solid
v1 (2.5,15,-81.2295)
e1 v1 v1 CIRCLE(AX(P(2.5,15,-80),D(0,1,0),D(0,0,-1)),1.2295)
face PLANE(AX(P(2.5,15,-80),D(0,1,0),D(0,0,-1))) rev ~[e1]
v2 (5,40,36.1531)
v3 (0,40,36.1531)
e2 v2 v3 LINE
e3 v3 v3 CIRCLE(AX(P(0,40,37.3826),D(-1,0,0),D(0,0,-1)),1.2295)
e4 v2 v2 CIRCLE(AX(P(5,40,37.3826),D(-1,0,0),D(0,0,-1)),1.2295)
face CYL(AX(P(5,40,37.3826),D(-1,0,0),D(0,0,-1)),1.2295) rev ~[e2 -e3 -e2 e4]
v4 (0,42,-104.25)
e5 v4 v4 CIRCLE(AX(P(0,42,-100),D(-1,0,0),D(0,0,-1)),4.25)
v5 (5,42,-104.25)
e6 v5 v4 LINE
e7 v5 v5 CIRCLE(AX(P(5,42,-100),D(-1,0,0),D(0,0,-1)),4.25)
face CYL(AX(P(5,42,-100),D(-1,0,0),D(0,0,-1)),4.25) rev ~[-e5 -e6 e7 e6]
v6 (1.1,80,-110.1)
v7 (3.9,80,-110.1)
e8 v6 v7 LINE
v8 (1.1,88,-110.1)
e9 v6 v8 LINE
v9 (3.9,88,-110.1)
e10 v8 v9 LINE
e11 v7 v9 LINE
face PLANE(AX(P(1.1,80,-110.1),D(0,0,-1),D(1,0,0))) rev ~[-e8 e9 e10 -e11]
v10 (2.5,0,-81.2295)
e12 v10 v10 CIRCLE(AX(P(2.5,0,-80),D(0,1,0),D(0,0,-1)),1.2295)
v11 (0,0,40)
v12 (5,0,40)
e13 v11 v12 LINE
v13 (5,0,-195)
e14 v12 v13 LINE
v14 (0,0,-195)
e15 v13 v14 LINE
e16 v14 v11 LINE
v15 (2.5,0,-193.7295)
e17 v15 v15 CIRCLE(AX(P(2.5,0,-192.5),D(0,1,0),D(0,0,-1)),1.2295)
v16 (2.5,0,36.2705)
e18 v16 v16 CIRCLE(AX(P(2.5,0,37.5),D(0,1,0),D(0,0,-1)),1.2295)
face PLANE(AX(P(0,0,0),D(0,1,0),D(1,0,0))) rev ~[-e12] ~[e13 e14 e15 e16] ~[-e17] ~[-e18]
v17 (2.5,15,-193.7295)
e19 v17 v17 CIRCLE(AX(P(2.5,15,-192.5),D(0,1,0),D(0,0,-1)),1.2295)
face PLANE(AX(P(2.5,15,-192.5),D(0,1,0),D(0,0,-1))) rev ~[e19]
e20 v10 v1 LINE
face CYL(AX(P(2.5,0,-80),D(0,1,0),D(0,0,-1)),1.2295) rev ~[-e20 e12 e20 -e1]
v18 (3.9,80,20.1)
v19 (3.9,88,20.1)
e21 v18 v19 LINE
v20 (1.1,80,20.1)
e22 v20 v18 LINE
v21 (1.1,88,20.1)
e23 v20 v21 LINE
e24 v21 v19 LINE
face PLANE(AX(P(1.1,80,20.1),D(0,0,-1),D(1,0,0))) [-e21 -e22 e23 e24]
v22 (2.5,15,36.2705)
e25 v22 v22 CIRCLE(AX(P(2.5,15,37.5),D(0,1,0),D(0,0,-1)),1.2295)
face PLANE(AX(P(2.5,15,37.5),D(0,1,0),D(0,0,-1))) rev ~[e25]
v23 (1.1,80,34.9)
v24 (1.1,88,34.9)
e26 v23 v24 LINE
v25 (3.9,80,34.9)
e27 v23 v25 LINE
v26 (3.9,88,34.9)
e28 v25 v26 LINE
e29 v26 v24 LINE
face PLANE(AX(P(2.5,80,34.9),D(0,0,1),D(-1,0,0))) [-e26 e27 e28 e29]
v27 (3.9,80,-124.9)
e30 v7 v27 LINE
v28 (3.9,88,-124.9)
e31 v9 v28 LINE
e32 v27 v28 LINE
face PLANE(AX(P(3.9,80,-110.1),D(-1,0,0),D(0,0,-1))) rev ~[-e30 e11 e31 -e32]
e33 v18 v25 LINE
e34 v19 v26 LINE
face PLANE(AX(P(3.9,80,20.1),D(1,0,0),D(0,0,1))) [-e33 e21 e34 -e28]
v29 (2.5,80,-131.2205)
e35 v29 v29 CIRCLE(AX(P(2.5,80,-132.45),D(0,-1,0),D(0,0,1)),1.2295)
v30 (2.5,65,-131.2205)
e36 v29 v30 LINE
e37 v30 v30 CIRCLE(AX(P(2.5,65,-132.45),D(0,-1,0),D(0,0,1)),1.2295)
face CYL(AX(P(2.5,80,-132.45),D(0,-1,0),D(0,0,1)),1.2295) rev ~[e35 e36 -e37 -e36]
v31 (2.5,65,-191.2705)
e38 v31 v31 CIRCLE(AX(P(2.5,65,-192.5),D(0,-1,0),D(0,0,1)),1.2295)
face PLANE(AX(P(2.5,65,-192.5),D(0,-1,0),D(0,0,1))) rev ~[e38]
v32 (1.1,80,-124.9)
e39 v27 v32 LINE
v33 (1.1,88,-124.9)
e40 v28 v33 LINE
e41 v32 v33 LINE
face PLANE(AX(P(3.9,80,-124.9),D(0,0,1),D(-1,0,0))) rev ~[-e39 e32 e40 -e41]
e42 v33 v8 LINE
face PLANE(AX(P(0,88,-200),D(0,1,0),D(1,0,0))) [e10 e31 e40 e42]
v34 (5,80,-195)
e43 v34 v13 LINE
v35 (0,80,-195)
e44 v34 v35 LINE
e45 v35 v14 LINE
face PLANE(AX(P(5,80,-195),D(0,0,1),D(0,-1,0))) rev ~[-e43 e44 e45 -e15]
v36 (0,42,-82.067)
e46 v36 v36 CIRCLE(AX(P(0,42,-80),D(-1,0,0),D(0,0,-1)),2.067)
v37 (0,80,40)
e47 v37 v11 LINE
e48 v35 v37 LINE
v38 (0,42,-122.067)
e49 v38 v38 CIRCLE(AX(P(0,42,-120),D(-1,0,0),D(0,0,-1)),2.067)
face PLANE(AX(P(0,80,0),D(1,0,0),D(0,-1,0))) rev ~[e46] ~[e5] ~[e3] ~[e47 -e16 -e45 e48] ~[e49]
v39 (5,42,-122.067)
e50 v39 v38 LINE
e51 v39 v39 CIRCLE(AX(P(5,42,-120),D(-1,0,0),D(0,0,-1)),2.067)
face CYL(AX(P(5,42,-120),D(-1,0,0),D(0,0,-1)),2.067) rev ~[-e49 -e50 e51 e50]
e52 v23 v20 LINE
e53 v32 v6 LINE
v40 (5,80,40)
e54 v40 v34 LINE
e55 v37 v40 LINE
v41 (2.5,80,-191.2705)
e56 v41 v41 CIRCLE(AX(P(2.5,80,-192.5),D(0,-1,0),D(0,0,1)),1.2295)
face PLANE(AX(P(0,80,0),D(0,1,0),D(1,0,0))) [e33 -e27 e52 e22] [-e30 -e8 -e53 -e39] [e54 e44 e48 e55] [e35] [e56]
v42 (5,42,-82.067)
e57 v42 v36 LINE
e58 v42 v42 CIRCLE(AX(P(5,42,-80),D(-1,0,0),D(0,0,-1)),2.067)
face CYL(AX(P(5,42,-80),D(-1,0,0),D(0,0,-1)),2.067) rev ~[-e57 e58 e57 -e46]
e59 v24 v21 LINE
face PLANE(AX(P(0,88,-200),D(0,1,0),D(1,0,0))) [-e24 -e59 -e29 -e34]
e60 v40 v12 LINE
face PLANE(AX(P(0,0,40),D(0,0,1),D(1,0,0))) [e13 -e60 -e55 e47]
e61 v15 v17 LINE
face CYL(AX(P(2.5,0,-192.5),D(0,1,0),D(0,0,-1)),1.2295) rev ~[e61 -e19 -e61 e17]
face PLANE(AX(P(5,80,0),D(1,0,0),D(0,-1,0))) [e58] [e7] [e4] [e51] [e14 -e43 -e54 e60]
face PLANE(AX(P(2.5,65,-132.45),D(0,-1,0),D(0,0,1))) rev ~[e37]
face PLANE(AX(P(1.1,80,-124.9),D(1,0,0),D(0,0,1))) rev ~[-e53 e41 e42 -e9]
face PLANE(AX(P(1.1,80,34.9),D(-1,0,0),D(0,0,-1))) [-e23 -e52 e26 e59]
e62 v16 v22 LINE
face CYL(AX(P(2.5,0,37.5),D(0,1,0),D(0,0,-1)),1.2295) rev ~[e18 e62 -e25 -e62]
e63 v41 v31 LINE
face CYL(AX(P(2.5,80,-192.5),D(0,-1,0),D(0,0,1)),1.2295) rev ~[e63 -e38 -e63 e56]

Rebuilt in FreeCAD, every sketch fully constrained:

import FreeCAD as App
import Part
import Sketcher
Q = App.Units.Quantity


def add_polygon(sketch, points):
    """Adds a closed chain of lines whose ends are joined by coincident constraints."""
    first, n = sketch.GeometryCount, len(points)
    for a, b in zip(points, points[1:] + points[:1]):
        sketch.addGeometry(Part.LineSegment(App.Vector(*a, 0), App.Vector(*b, 0)), False)
    for i in range(n):
        sketch.addConstraint(Sketcher.Constraint("Coincident", first + i, 2, first + (i + 1) % n, 1))

doc = App.newDocument("Part")
params = doc.addObject("Spreadsheet::Sheet", "Params")
for row, (alias, value) in enumerate([
    ("sketch1_width", "80 mm"),
    ("sketch1_height", "200 mm"),
    ("pad1_length", "5 mm"),
    ("hole_diameter", "4.134 mm"),
    ("sketch3_diameter", "8.5 mm"),
    ("hole2_diameter", "8.5 mm"),
    ("sketch4_width", "5 mm"),
    ("sketch4_height", "80 mm"),
    ("pad2_length", "40 mm"),
    ("hole3_diameter", "2.459 mm"),
    ("hole3_depth", "15 mm"),
    ("hole4_diameter", "2.459 mm"),
    ("hole4_depth", "15 mm"),
    ("hole5_diameter", "2.459 mm"),
    ("sketch8_width", "2.8 mm"),
    ("sketch8_height", "14.8 mm"),
    ("pad3_length", "8 mm"),
    ("sketch9_height", "5 mm"),
    ("sketch9_width", "80 mm"),
    ("pocket1_length", "8 mm"),
    ("hole6_diameter", "2.459 mm"),
    ("hole6_depth", "15 mm"),
    ("hole7_diameter", "2.459 mm"),
    ("hole7_depth", "15 mm"),
], start=1):
    params.set(f"A{row}", alias)
    params.set(f"B{row}", "=" + value)
    params.setAlias(f"B{row}", alias)

body = doc.addObject("PartDesign::Body", "Body")

sketch1 = body.newObject("Sketcher::SketchObject", "Sketch")
sketch1.AttachmentSupport = (doc.getObject("YZ_Plane"), [""])
sketch1.MapMode = "FlatFace"
add_polygon(sketch1, [(80, 0), (0, 0), (0, -200), (80, -200)])
sketch1.addConstraint([
    Sketcher.Constraint("Horizontal", 0),
    Sketcher.Constraint("Vertical", 1),
    Sketcher.Constraint("Horizontal", 2),
    Sketcher.Constraint("Vertical", 3),
    Sketcher.Constraint("Coincident", 0, 2, -1, 1),
    Sketcher.Constraint("DistanceX", 0, 2, 0, 1, Q("80 mm")),
    Sketcher.Constraint("DistanceY", 1, 2, 1, 1, Q("200 mm")),
])
sketch1.setExpression("Constraints[9]", "Params.sketch1_width")
sketch1.setExpression("Constraints[10]", "Params.sketch1_height")
pad1 = body.newObject("PartDesign::Pad", "Pad")
pad1.Profile = sketch1
pad1.setExpression("Length", "Params.pad1_length")

sketch2 = body.newObject("Sketcher::SketchObject", "Sketch001")
sketch2.AttachmentSupport = (doc.getObject("YZ_Plane"), [""])
sketch2.MapMode = "FlatFace"
sketch2.AttachmentOffset = App.Placement(App.Vector(0, 0, 5), App.Rotation())
sketch2.addGeometry([
    Part.Circle(App.Vector(42, -120, 0), App.Vector(0, 0, 1), 2.1),
    Part.Circle(App.Vector(42, -80, 0), App.Vector(0, 0, 1), 2.1),
], False)
sketch2.addConstraint([
    Sketcher.Constraint("Equal", 0, 1),
    Sketcher.Constraint("Vertical", 0, 3, 1, 3),
    Sketcher.Constraint("Diameter", 0, Q("4.134 mm")),
    Sketcher.Constraint("DistanceX", -1, 1, 0, 3, Q("42 mm")),
    Sketcher.Constraint("DistanceY", 0, 3, -1, 1, Q("120 mm")),
    Sketcher.Constraint("DistanceY", 1, 3, -1, 1, Q("80 mm")),
])
doc.recompute()
hole = body.newObject("PartDesign::Hole", "Hole")
hole.Profile = sketch2
hole.ThreadType = "None"
hole.setExpression("Diameter", "Params.hole_diameter")
hole.DepthType = "ThroughAll"

sketch3 = body.newObject("Sketcher::SketchObject", "Sketch002")
sketch3.AttachmentSupport = (doc.getObject("YZ_Plane"), [""])
sketch3.MapMode = "FlatFace"
sketch3.AttachmentOffset = App.Placement(App.Vector(0, 0, 5), App.Rotation())
sketch3.addGeometry(Part.Circle(App.Vector(42, -100, 0), App.Vector(0, 0, 1), 4.2), False)
sketch3.addConstraint([
    Sketcher.Constraint("Diameter", 0, Q("8.5 mm")),
    Sketcher.Constraint("DistanceX", -1, 1, 0, 3, Q("42 mm")),
    Sketcher.Constraint("DistanceY", 0, 3, -1, 1, Q("100 mm")),
])
sketch3.setExpression("Constraints[0]", "Params.sketch3_diameter")
doc.recompute()
hole2 = body.newObject("PartDesign::Hole", "Hole001")
hole2.Profile = sketch3
hole2.ThreadType = "None"
hole2.setExpression("Diameter", "Params.hole2_diameter")
hole2.DepthType = "ThroughAll"

sketch4 = body.newObject("Sketcher::SketchObject", "Sketch003")
sketch4.AttachmentSupport = (doc.getObject("XY_Plane"), [""])
sketch4.MapMode = "FlatFace"
add_polygon(sketch4, [(5, 80), (0, 80), (0, 0), (5, 0)])
sketch4.addConstraint([
    Sketcher.Constraint("Horizontal", 0),
    Sketcher.Constraint("Vertical", 1),
    Sketcher.Constraint("Horizontal", 2),
    Sketcher.Constraint("Vertical", 3),
    Sketcher.Constraint("Coincident", 1, 2, -1, 1),
    Sketcher.Constraint("DistanceX", 0, 2, 0, 1, Q("5 mm")),
    Sketcher.Constraint("DistanceY", 1, 2, 1, 1, Q("80 mm")),
])
sketch4.setExpression("Constraints[9]", "Params.sketch4_width")
sketch4.setExpression("Constraints[10]", "Params.sketch4_height")
pad2 = body.newObject("PartDesign::Pad", "Pad001")
pad2.Profile = sketch4
pad2.setExpression("Length", "Params.pad2_length")

sketch5 = body.newObject("Sketcher::SketchObject", "Sketch004")
sketch5.AttachmentSupport = (doc.getObject("XZ_Plane"), [""])
sketch5.MapMode = "FlatFace"
sketch5.AttachmentOffset = App.Placement(App.Vector(0, 0, -80), App.Rotation())
sketch5.addGeometry([
    Part.Circle(App.Vector(2.5, -197.5, 0), App.Vector(0, 0, 1), 1.2),
    Part.Circle(App.Vector(2.5, -132.4, 0), App.Vector(0, 0, 1), 1.2),
], False)
sketch5.addConstraint([
    Sketcher.Constraint("Equal", 0, 1),
    Sketcher.Constraint("Vertical", 0, 3, 1, 3),
    Sketcher.Constraint("Diameter", 0, Q("2.459 mm")),
    Sketcher.Constraint("DistanceX", -1, 1, 0, 3, Q("2.5 mm")),
    Sketcher.Constraint("DistanceY", 0, 3, -1, 1, Q("197.5 mm")),
    Sketcher.Constraint("DistanceY", 1, 3, -1, 1, Q("132.45 mm")),
])
doc.recompute()
hole3 = body.newObject("PartDesign::Hole", "Hole002")
hole3.Profile = sketch5
hole3.ThreadType = "None"
hole3.setExpression("Diameter", "Params.hole3_diameter")
hole3.DepthType = "Dimension"
hole3.setExpression("Depth", "Params.hole3_depth")
hole3.DrillPoint = "Flat"
hole3.Reversed = True

sketch6 = body.newObject("Sketcher::SketchObject", "Sketch005")
sketch6.AttachmentSupport = (doc.getObject("XZ_Plane"), [""])
sketch6.MapMode = "FlatFace"
sketch6.addGeometry([
    Part.Circle(App.Vector(2.5, -197.5, 0), App.Vector(0, 0, 1), 1.2),
    Part.Circle(App.Vector(2.5, 37.5, 0), App.Vector(0, 0, 1), 1.2),
    Part.Circle(App.Vector(2.5, -80, 0), App.Vector(0, 0, 1), 1.2),
], False)
sketch6.addConstraint([
    Sketcher.Constraint("Equal", 0, 1),
    Sketcher.Constraint("Equal", 1, 2),
    Sketcher.Constraint("Vertical", 0, 3, 1, 3),
    Sketcher.Constraint("Vertical", 1, 3, 2, 3),
    Sketcher.Constraint("Diameter", 0, Q("2.459 mm")),
    Sketcher.Constraint("DistanceY", 2, 3, -1, 1, Q("80 mm")),
    Sketcher.Constraint("DistanceY", 0, 3, 1, 3, Q("235 mm")),
    Sketcher.Constraint("DistanceX", -1, 1, 0, 3, Q("2.5 mm")),
    Sketcher.Constraint("DistanceY", 0, 3, -1, 1, Q("197.5 mm")),
])
doc.recompute()
hole4 = body.newObject("PartDesign::Hole", "Hole003")
hole4.Profile = sketch6
hole4.ThreadType = "None"
hole4.setExpression("Diameter", "Params.hole4_diameter")
hole4.DepthType = "Dimension"
hole4.setExpression("Depth", "Params.hole4_depth")
hole4.DrillPoint = "Flat"

sketch7 = body.newObject("Sketcher::SketchObject", "Sketch006")
sketch7.AttachmentSupport = (doc.getObject("YZ_Plane"), [""])
sketch7.MapMode = "FlatFace"
sketch7.AttachmentOffset = App.Placement(App.Vector(0, 0, 5), App.Rotation())
sketch7.addGeometry([
    Part.Circle(App.Vector(40, -197.5, 0), App.Vector(0, 0, 1), 1.2),
    Part.Circle(App.Vector(40, 37.4, 0), App.Vector(0, 0, 1), 1.2),
], False)
sketch7.addConstraint([
    Sketcher.Constraint("Equal", 0, 1),
    Sketcher.Constraint("Vertical", 0, 3, 1, 3),
    Sketcher.Constraint("Diameter", 0, Q("2.459 mm")),
    Sketcher.Constraint("DistanceX", -1, 1, 0, 3, Q("40 mm")),
    Sketcher.Constraint("DistanceY", 0, 3, -1, 1, Q("197.5 mm")),
    Sketcher.Constraint("DistanceY", -1, 1, 1, 3, Q("37.3826 mm")),
])
doc.recompute()
hole5 = body.newObject("PartDesign::Hole", "Hole004")
hole5.Profile = sketch7
hole5.ThreadType = "None"
hole5.setExpression("Diameter", "Params.hole5_diameter")
hole5.DepthType = "ThroughAll"

sketch8 = body.newObject("Sketcher::SketchObject", "Sketch007")
sketch8.AttachmentSupport = (doc.getObject("XZ_Plane"), [""])
sketch8.MapMode = "FlatFace"
sketch8.AttachmentOffset = App.Placement(App.Vector(0, 0, -80), App.Rotation())
add_polygon(sketch8, [(1.1, -124.9), (1.1, -110.1), (3.9, -110.1), (3.9, -124.9)])
add_polygon(sketch8, [(1.1, 34.9), (3.9, 34.9), (3.9, 20.1), (1.1, 20.1)])
sketch8.addConstraint([
    Sketcher.Constraint("Vertical", 0),
    Sketcher.Constraint("Horizontal", 1),
    Sketcher.Constraint("Vertical", 2),
    Sketcher.Constraint("Horizontal", 3),
    Sketcher.Constraint("Horizontal", 4),
    Sketcher.Constraint("Vertical", 5),
    Sketcher.Constraint("Horizontal", 6),
    Sketcher.Constraint("Vertical", 7),
    Sketcher.Constraint("Vertical", 2, 2, 4, 2),
    Sketcher.Constraint("Vertical", 3, 2, 6, 2),
    Sketcher.Constraint("Equal", 2, 5),
    Sketcher.Constraint("DistanceX", 1, 1, 1, 2, Q("2.8 mm")),
    Sketcher.Constraint("DistanceY", 0, 1, 0, 2, Q("14.8 mm")),
    Sketcher.Constraint("DistanceX", -1, 1, 0, 2, Q("1.1 mm")),
    Sketcher.Constraint("DistanceY", 1, 2, 4, 2, Q("145 mm")),
    Sketcher.Constraint("DistanceY", 0, 2, -1, 1, Q("110.1 mm")),
])
sketch8.setExpression("Constraints[19]", "Params.sketch8_width")
sketch8.setExpression("Constraints[20]", "Params.sketch8_height")
pad3 = body.newObject("PartDesign::Pad", "Pad002")
pad3.Profile = sketch8
pad3.setExpression("Length", "Params.pad3_length")
pad3.Reversed = True

sketch9 = body.newObject("Sketcher::SketchObject", "Sketch008")
sketch9.AttachmentSupport = (doc.getObject("YZ_Plane"), [""])
sketch9.MapMode = "FlatFace"
sketch9.AttachmentOffset = App.Placement(App.Vector(0, 0, 5), App.Rotation())
add_polygon(sketch9, [(0, -200), (80, -200), (80, -195), (0, -195)])
sketch9.addConstraint([
    Sketcher.Constraint("Horizontal", 0),
    Sketcher.Constraint("Vertical", 1),
    Sketcher.Constraint("Horizontal", 2),
    Sketcher.Constraint("Vertical", 3),
    Sketcher.Constraint("PointOnObject", 2, 2, -2),
    Sketcher.Constraint("DistanceY", 1, 1, 1, 2, Q("5 mm")),
    Sketcher.Constraint("DistanceX", 0, 1, 0, 2, Q("80 mm")),
    Sketcher.Constraint("DistanceY", 0, 2, -1, 1, Q("200 mm")),
])
sketch9.setExpression("Constraints[9]", "Params.sketch9_height")
sketch9.setExpression("Constraints[10]", "Params.sketch9_width")
pocket1 = body.newObject("PartDesign::Pocket", "Pocket")
pocket1.Profile = sketch9
pocket1.setExpression("Length", "Params.pocket1_length")

sketch10 = body.newObject("Sketcher::SketchObject", "Sketch009")
sketch10.AttachmentSupport = (doc.getObject("XZ_Plane"), [""])
sketch10.MapMode = "FlatFace"
sketch10.AttachmentOffset = App.Placement(App.Vector(0, 0, -80), App.Rotation())
sketch10.addGeometry(Part.Circle(App.Vector(2.5, -192.5, 0), App.Vector(0, 0, 1), 1.2), False)
sketch10.addConstraint([
    Sketcher.Constraint("Diameter", 0, Q("2.459 mm")),
    Sketcher.Constraint("DistanceX", -1, 1, 0, 3, Q("2.5 mm")),
    Sketcher.Constraint("DistanceY", 0, 3, -1, 1, Q("192.5 mm")),
])
doc.recompute()
hole6 = body.newObject("PartDesign::Hole", "Hole005")
hole6.Profile = sketch10
hole6.ThreadType = "None"
hole6.setExpression("Diameter", "Params.hole6_diameter")
hole6.DepthType = "Dimension"
hole6.setExpression("Depth", "Params.hole6_depth")
hole6.DrillPoint = "Flat"
hole6.Reversed = True

sketch11 = body.newObject("Sketcher::SketchObject", "Sketch010")
sketch11.AttachmentSupport = (doc.getObject("XZ_Plane"), [""])
sketch11.MapMode = "FlatFace"
sketch11.addGeometry(Part.Circle(App.Vector(2.5, -192.5, 0), App.Vector(0, 0, 1), 1.2), False)
sketch11.addConstraint([
    Sketcher.Constraint("Diameter", 0, Q("2.459 mm")),
    Sketcher.Constraint("DistanceX", -1, 1, 0, 3, Q("2.5 mm")),
    Sketcher.Constraint("DistanceY", 0, 3, -1, 1, Q("192.5 mm")),
])
doc.recompute()
hole7 = body.newObject("PartDesign::Hole", "Hole006")
hole7.Profile = sketch11
hole7.ThreadType = "None"
hole7.setExpression("Diameter", "Params.hole7_diameter")
hole7.DepthType = "Dimension"
hole7.setExpression("Depth", "Params.hole7_depth")
hole7.DrillPoint = "Flat"

doc.recompute()
